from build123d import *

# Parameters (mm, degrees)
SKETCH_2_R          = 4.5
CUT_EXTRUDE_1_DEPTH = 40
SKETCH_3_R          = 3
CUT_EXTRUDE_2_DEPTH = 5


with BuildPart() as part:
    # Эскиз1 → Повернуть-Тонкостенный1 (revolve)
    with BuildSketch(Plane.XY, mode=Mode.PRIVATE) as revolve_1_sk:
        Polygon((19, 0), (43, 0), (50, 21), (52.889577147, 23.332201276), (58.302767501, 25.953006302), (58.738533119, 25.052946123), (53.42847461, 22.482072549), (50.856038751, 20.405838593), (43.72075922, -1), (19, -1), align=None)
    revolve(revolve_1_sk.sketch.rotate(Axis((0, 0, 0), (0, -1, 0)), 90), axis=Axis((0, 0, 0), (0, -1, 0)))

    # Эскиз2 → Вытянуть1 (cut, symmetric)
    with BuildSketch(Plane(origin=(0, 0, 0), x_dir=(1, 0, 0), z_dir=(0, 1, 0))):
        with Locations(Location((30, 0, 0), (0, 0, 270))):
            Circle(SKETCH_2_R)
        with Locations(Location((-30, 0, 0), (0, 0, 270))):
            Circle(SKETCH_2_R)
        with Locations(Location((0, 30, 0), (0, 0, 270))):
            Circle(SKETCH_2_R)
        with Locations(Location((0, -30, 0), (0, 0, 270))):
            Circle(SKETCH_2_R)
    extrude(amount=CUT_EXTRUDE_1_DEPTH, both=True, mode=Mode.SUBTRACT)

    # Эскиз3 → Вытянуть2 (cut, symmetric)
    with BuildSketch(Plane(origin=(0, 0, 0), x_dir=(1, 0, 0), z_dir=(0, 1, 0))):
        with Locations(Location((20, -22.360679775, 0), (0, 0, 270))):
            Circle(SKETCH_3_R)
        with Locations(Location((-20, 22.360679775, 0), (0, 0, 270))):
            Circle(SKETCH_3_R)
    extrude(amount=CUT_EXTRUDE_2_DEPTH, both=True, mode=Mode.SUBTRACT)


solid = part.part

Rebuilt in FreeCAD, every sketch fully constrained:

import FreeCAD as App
import Part
import Sketcher

V = App.Vector


def add_polygon(sketch, points):
    """Adds a closed chain of lines whose ends are joined by coincident constraints."""
    first, n = sketch.GeometryCount, len(points)
    for a, b in zip(points, points[1:] + points[:1]):
        sketch.addGeometry(Part.LineSegment(App.Vector(*a, 0), App.Vector(*b, 0)), False)
    for i in range(n):
        sketch.addConstraint(Sketcher.Constraint("Coincident", first + i, 2, first + (i + 1) % n, 1))

doc = App.newDocument("Part")
body = doc.addObject("PartDesign::Body", "Body")

sketch1 = body.newObject("Sketcher::SketchObject", "Sketch")
sketch1.AttachmentSupport = (doc.getObject("XY_Plane"), [""])
sketch1.MapMode = "FlatFace"
add_polygon(sketch1, [(43, 0), (19, 0), (19, -1), (43.720759, -1), (50.856039, 20.405839), (53.428475, 22.482073), (58.738533, 25.052946), (58.302768, 25.953006), (52.889577, 23.332201), (50, 21)])
sketch1.addConstraint(Sketcher.Constraint("Horizontal", 0))
sketch1.addConstraint(Sketcher.Constraint("Vertical", 1))
sketch1.addConstraint(Sketcher.Constraint("Horizontal", 2))
sketch1.addConstraint(Sketcher.Constraint("PointOnObject", 0, 2, -1))
sketch1.addConstraint(Sketcher.Constraint("DistanceX", 0, 2, 0, 1, 24.0))
sketch1.addConstraint(Sketcher.Constraint("DistanceY", 1, 2, 1, 1, 1.0))
sketch1.addConstraint(Sketcher.Constraint("Distance", 6, 1.0))
sketch1.addConstraint(Sketcher.Constraint("DistanceX", -1, 1, 0, 2, 19.0))
sketch1.addConstraint(Sketcher.Constraint("DistanceX", -1, 1, 8, 2, 50.0))
sketch1.addConstraint(Sketcher.Constraint("DistanceY", -1, 1, 8, 2, 21.0))
sketch1.addConstraint(Sketcher.Constraint("DistanceX", 2, 1, 2, 2, 24.720759))
sketch1.addConstraint(Sketcher.Constraint("DistanceY", -1, 1, 7, 2, 23.332201))
sketch1.addConstraint(Sketcher.Constraint("Distance", 4, 3.305779))
sketch1.addConstraint(Sketcher.Constraint("Distance", 5, 5.899671))
sketch1.addConstraint(Sketcher.Constraint("Distance", 8, 3.71333))
sketch1.addConstraint(Sketcher.Constraint("DistanceX", -1, 1, 3, 2, 50.856039))
sketch1.addConstraint(Sketcher.Constraint("DistanceY", -1, 1, 3, 2, 20.405839))
sketch1.addConstraint(Sketcher.Constraint("DistanceX", 4, 2, 5, 2, 5.310059))
sketch1.addConstraint(Sketcher.Constraint("DistanceY", 5, 2, 6, 2, 0.90006))
sketch1.addConstraint(Sketcher.Constraint("DistanceX", 3, 2, 6, 2, 7.446729))
revolution = body.newObject("PartDesign::Revolution", "Revolution")
revolution.Profile = sketch1
revolution.ReferenceAxis = (sketch1, ["V_Axis"])
revolution.Angle = 360

sketch2 = body.newObject("Sketcher::SketchObject", "Sketch001")
sketch2.AttachmentSupport = (doc.getObject("XZ_Plane"), [""])
sketch2.MapMode = "FlatFace"
sketch2.addGeometry(Part.Circle(V(30, 0, 0), V(0, 0, 1), 4.5), False)
sketch2.addGeometry(Part.Circle(V(-30, 0, 0), V(0, 0, 1), 4.5), False)
sketch2.addGeometry(Part.Circle(V(0, -30, 0), V(0, 0, 1), 4.5), False)
sketch2.addGeometry(Part.Circle(V(0, 30, 0), V(0, 0, 1), 4.5), False)
sketch2.addConstraint(Sketcher.Constraint("Equal", 0, 1))
sketch2.addConstraint(Sketcher.Constraint("Equal", 1, 2))
sketch2.addConstraint(Sketcher.Constraint("Equal", 2, 3))
sketch2.addConstraint(Sketcher.Constraint("Symmetric", 0, 3, 1, 3, -1, 1))
sketch2.addConstraint(Sketcher.Constraint("Symmetric", 2, 3, 3, 3, -1, 1))
sketch2.addConstraint(Sketcher.Constraint("PointOnObject", 0, 3, -1))
sketch2.addConstraint(Sketcher.Constraint("PointOnObject", 2, 3, -2))
sketch2.addConstraint(Sketcher.Constraint("Diameter", 0, 9.0))
sketch2.addConstraint(Sketcher.Constraint("DistanceX", -1, 1, 0, 3, 30.0))
sketch2.addConstraint(Sketcher.Constraint("DistanceY", 2, 3, -1, 1, 30.0))
pocket1 = body.newObject("PartDesign::Pocket", "Pocket")
pocket1.Profile = sketch2
pocket1.Length = 80
pocket1.Midplane = True

sketch3 = body.newObject("Sketcher::SketchObject", "Sketch002")
sketch3.AttachmentSupport = (doc.getObject("XZ_Plane"), [""])
sketch3.MapMode = "FlatFace"
sketch3.addGeometry(Part.Circle(V(20, 22.36068, 0), V(0, 0, 1), 3), False)
sketch3.addGeometry(Part.Circle(V(-20, -22.36068, 0), V(0, 0, 1), 3), False)
sketch3.addConstraint(Sketcher.Constraint("Equal", 0, 1))
sketch3.addConstraint(Sketcher.Constraint("Symmetric", 0, 3, 1, 3, -1, 1))
sketch3.addConstraint(Sketcher.Constraint("Diameter", 0, 6.0))
sketch3.addConstraint(Sketcher.Constraint("DistanceX", -1, 1, 0, 3, 20.0))
sketch3.addConstraint(Sketcher.Constraint("DistanceY", -1, 1, 0, 3, 22.36068))
pocket2 = body.newObject("PartDesign::Pocket", "Pocket001")
pocket2.Profile = sketch3
pocket2.Length = 10
pocket2.Midplane = True

doc.recompute()
